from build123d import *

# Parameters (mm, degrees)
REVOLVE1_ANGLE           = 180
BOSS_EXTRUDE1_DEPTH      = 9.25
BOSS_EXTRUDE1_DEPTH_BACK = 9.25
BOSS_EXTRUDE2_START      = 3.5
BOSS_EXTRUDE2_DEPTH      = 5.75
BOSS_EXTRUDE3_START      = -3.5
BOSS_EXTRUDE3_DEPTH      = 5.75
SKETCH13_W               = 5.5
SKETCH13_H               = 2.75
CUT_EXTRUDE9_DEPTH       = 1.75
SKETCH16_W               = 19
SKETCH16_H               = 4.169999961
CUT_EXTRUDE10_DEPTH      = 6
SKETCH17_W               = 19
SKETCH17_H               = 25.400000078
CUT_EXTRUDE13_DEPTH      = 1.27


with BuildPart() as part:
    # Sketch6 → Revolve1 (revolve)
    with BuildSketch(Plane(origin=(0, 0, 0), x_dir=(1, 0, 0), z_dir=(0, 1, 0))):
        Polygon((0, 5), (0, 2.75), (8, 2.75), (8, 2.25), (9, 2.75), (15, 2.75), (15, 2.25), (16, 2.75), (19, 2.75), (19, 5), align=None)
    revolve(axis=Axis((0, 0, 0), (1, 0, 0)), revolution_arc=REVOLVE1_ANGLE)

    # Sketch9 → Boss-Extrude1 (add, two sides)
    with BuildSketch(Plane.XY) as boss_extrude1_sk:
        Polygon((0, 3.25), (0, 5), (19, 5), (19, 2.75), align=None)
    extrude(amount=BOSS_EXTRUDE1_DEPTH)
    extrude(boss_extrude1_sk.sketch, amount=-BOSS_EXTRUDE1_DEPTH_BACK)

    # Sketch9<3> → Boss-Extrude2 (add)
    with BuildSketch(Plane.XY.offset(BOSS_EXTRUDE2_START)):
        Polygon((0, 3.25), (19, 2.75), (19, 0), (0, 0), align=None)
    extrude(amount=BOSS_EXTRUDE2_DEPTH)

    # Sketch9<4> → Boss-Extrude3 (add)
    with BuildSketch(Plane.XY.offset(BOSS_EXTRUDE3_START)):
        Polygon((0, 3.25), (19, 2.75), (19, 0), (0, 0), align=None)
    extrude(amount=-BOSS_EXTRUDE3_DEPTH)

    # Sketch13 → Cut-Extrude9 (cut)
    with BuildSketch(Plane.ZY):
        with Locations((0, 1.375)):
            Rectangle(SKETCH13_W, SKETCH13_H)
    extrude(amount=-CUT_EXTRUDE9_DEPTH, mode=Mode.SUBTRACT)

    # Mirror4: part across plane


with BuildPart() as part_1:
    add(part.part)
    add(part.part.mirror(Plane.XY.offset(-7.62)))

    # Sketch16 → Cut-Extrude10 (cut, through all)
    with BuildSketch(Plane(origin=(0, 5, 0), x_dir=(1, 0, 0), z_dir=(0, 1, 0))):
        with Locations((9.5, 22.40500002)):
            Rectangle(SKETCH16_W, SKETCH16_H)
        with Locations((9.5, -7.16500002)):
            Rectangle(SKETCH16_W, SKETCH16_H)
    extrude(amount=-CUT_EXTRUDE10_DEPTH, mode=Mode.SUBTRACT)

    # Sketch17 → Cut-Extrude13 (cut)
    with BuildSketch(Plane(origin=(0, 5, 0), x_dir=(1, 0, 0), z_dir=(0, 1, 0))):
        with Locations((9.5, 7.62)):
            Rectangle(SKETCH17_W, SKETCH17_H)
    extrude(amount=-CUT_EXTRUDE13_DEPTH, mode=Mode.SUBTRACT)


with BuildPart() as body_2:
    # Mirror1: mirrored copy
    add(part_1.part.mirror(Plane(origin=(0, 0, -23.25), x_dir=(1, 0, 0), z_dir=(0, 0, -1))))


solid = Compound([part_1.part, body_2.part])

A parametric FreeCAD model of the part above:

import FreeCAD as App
import Part
import Sketcher
from FreeCAD import Vector
Q = App.Units.Quantity


def add_polygon(sketch, points):
    """Adds a closed chain of lines whose ends are joined by coincident constraints."""
    first, n = sketch.GeometryCount, len(points)
    for a, b in zip(points, points[1:] + points[:1]):
        sketch.addGeometry(Part.LineSegment(App.Vector(*a, 0), App.Vector(*b, 0)), False)
    for i in range(n):
        sketch.addConstraint(Sketcher.Constraint("Coincident", first + i, 2, first + (i + 1) % n, 1))

doc = App.newDocument("Part")
params = doc.addObject("Spreadsheet::Sheet", "Params")
for row, (alias, value) in enumerate([
    ("sketch1_width", "8 mm"),
    ("sketch1_width2", "6 mm"),
    ("sketch1_width3", "3 mm"),
    ("sketch1_width4", "19 mm"),
    ("sketch1_height", "0.5 mm"),
    ("revolution_angle", "180 deg"),
    ("sketch2_width", "19 mm"),
    ("sketch2_height", "1.75 mm"),
    ("sketch2_height2", "2.25 mm"),
    ("pad1_length", "9.25 mm"),
    ("pad1_length2", "9.25 mm"),
    ("sketch3_width", "19 mm"),
    ("sketch3_height", "3.25 mm"),
    ("sketch3_height2", "2.75 mm"),
    ("pad2_length", "5.75 mm"),
    ("sketch4_width", "19 mm"),
    ("sketch4_height", "3.25 mm"),
    ("sketch4_height2", "2.75 mm"),
    ("pad3_length", "5.75 mm"),
    ("sketch5_height", "5.5 mm"),
    ("sketch5_width", "2.75 mm"),
    ("pocket1_length", "1.75 mm"),
    ("sketch6_width", "19 mm"),
    ("sketch6_height", "4.17 mm"),
    ("sketch7_width", "19 mm"),
    ("sketch7_height", "25.4 mm"),
    ("pocket3_length", "1.27 mm"),
], start=1):
    params.set(f"A{row}", alias)
    params.set(f"B{row}", "=" + value)
    params.setAlias(f"B{row}", alias)

body = doc.addObject("PartDesign::Body", "Body")

# Sketch on XZ plane
sketch1 = doc.addObject("Sketcher::SketchObject", "Sketch")
body.addObject(sketch1)
sketch1.AttachmentSupport = (doc.XZ_Plane, [""])
sketch1.MapMode = "FlatFace"
add_polygon(sketch1, [(0, -5), (0, -2.8), (8, -2.8), (8, -2.2), (9, -2.8), (15, -2.8), (15, -2.2), (16, -2.8), (19, -2.8), (19, -5)])  # lines 0-9
sketch1.addConstraint([
    Sketcher.Constraint("Vertical", 0),
    Sketcher.Constraint("Horizontal", 1),
    Sketcher.Constraint("Vertical", 2),
    Sketcher.Constraint("Horizontal", 4),
    Sketcher.Constraint("Vertical", 5),
    Sketcher.Constraint("Horizontal", 7),
    Sketcher.Constraint("Vertical", 8),
    Sketcher.Constraint("Horizontal", 9),
    Sketcher.Constraint("PointOnObject", 0, 2, -2),
    Sketcher.Constraint("Parallel", 3, 6),
    Sketcher.Constraint("Horizontal", 1, 2, 3, 2),
    Sketcher.Constraint("Horizontal", 2, 2, 5, 2),
    Sketcher.Constraint("Horizontal", 4, 2, 6, 2),
    Sketcher.Constraint("DistanceX", 1, 1, 1, 2, Q("8 mm")),
    Sketcher.Constraint("DistanceX", 4, 1, 4, 2, Q("6 mm")),
    Sketcher.Constraint("DistanceX", 7, 1, 7, 2, Q("3 mm")),
    Sketcher.Constraint("DistanceX", 9, 2, 9, 1, Q("19 mm")),
    Sketcher.Constraint("DistanceY", 2, 1, 2, 2, Q("0.5 mm")),
    Sketcher.Constraint("DistanceY", 8, 2, -1, 1, Q("5 mm")),
    Sketcher.Constraint("DistanceY", 0, 1, 0, 2, Q("2.25 mm")),
])
sketch1.setExpression("Constraints[23]", "Params.sketch1_width")
sketch1.setExpression("Constraints[24]", "Params.sketch1_width2")
sketch1.setExpression("Constraints[25]", "Params.sketch1_width3")
sketch1.setExpression("Constraints[26]", "Params.sketch1_width4")
sketch1.setExpression("Constraints[27]", "Params.sketch1_height")
revolution = doc.addObject("PartDesign::Revolution", "Revolution")
body.addObject(revolution)
revolution.Profile = sketch1
revolution.ReferenceAxis = (sketch1, ["H_Axis"])
revolution.setExpression("Angle", "Params.revolution_angle")

# Sketch on XY plane
sketch2 = doc.addObject("Sketcher::SketchObject", "Sketch001")
body.addObject(sketch2)
sketch2.AttachmentSupport = (doc.XY_Plane, [""])
sketch2.MapMode = "FlatFace"
add_polygon(sketch2, [(0, 5), (0, 3.2), (19, 2.8), (19, 5)])  # lines 0-3
sketch2.addConstraint([
    Sketcher.Constraint("Vertical", 0),
    Sketcher.Constraint("Vertical", 2),
    Sketcher.Constraint("Horizontal", 3),
    Sketcher.Constraint("PointOnObject", 0, 2, -2),
    Sketcher.Constraint("DistanceX", 3, 2, 3, 1, Q("19 mm")),
    Sketcher.Constraint("DistanceY", -1, 1, 2, 2, Q("5 mm")),
    Sketcher.Constraint("DistanceY", 0, 2, 0, 1, Q("1.75 mm")),
    Sketcher.Constraint("DistanceY", 2, 1, 2, 2, Q("2.25 mm")),
])
sketch2.setExpression("Constraints[8]", "Params.sketch2_width")
sketch2.setExpression("Constraints[10]", "Params.sketch2_height")
sketch2.setExpression("Constraints[11]", "Params.sketch2_height2")
pad1 = doc.addObject("PartDesign::Pad", "Pad")
body.addObject(pad1)
pad1.Profile = sketch2
pad1.Type = "TwoLengths"
pad1.setExpression("Length", "Params.pad1_length")
pad1.setExpression("Length2", "Params.pad1_length2")

# Sketch on XY plane
sketch3 = doc.addObject("Sketcher::SketchObject", "Sketch002")
body.addObject(sketch3)
sketch3.AttachmentSupport = (doc.XY_Plane, [""])
sketch3.MapMode = "FlatFace"
sketch3.AttachmentOffset = App.Placement(Vector(0, 0, 3.5), App.Rotation())
add_polygon(sketch3, [(19, 2.8), (0, 3.2), (0, 0), (19, 0)])  # lines 0-3
sketch3.addConstraint([
    Sketcher.Constraint("Vertical", 1),
    Sketcher.Constraint("Horizontal", 2),
    Sketcher.Constraint("Vertical", 3),
    Sketcher.Constraint("Coincident", 1, 2, -1, 1),
    Sketcher.Constraint("DistanceX", 2, 1, 2, 2, Q("19 mm")),
    Sketcher.Constraint("DistanceY", 1, 2, 1, 1, Q("3.25 mm")),
    Sketcher.Constraint("DistanceY", 3, 1, 3, 2, Q("2.75 mm")),
])
sketch3.setExpression("Constraints[8]", "Params.sketch3_width")
sketch3.setExpression("Constraints[9]", "Params.sketch3_height")
sketch3.setExpression("Constraints[10]", "Params.sketch3_height2")
pad2 = doc.addObject("PartDesign::Pad", "Pad001")
body.addObject(pad2)
pad2.Profile = sketch3
pad2.setExpression("Length", "Params.pad2_length")

# Sketch on XY plane
sketch4 = doc.addObject("Sketcher::SketchObject", "Sketch003")
body.addObject(sketch4)
sketch4.AttachmentSupport = (doc.XY_Plane, [""])
sketch4.MapMode = "FlatFace"
sketch4.AttachmentOffset = App.Placement(Vector(0, 0, -3.5), App.Rotation())
add_polygon(sketch4, [(19, 2.8), (0, 3.2), (0, 0), (19, 0)])  # lines 0-3
sketch4.addConstraint([
    Sketcher.Constraint("Vertical", 1),
    Sketcher.Constraint("Horizontal", 2),
    Sketcher.Constraint("Vertical", 3),
    Sketcher.Constraint("Coincident", 1, 2, -1, 1),
    Sketcher.Constraint("DistanceX", 2, 1, 2, 2, Q("19 mm")),
    Sketcher.Constraint("DistanceY", 1, 2, 1, 1, Q("3.25 mm")),
    Sketcher.Constraint("DistanceY", 3, 1, 3, 2, Q("2.75 mm")),
])
sketch4.setExpression("Constraints[8]", "Params.sketch4_width")
sketch4.setExpression("Constraints[9]", "Params.sketch4_height")
sketch4.setExpression("Constraints[10]", "Params.sketch4_height2")
pad3 = doc.addObject("PartDesign::Pad", "Pad002")
body.addObject(pad3)
pad3.Profile = sketch4
pad3.setExpression("Length", "Params.pad3_length")
pad3.Reversed = True

# Sketch on YZ plane
sketch5 = doc.addObject("Sketcher::SketchObject", "Sketch004")
body.addObject(sketch5)
sketch5.AttachmentSupport = (doc.YZ_Plane, [""])
sketch5.MapMode = "FlatFace"
add_polygon(sketch5, [(2.8, -2.8), (0, -2.8), (0, 2.8), (2.8, 2.8)])  # lines 0-3
sketch5.addConstraint([
    Sketcher.Constraint("Horizontal", 0),
    Sketcher.Constraint("Vertical", 1),
    Sketcher.Constraint("Horizontal", 2),
    Sketcher.Constraint("Vertical", 3),
    Sketcher.Constraint("Symmetric", 0, 2, 1, 2, -1, 1),
    Sketcher.Constraint("DistanceY", 1, 1, 1, 2, Q("5.5 mm")),
    Sketcher.Constraint("DistanceX", 0, 2, 0, 1, Q("2.75 mm")),
])
sketch5.setExpression("Constraints[9]", "Params.sketch5_height")
sketch5.setExpression("Constraints[10]", "Params.sketch5_width")
pocket1 = doc.addObject("PartDesign::Pocket", "Pocket")
body.addObject(pocket1)
pocket1.Profile = sketch5
pocket1.setExpression("Length", "Params.pocket1_length")
pocket1.Reversed = True
body2 = doc.addObject("PartDesign::Body", "Body001")
doc.recompute()

body2.BaseFeature = body
doc.recompute()

mirroring = doc.addObject("Part::Mirroring", "Mirroring")
mirroring.Source = body
mirroring.Base = Vector(0, 0, -7.62)
mirroring.Normal = Vector(0, 0, 1)
body3 = doc.addObject("PartDesign::Body", "Body002")
body3.BaseFeature = mirroring
boolean = doc.addObject("PartDesign::Boolean", "Boolean")
body2.addObject(boolean)
boolean.Type = "Fuse"
boolean.addObjects([body3])
doc.recompute()

# Sketch on XZ plane
sketch6 = doc.addObject("Sketcher::SketchObject", "Sketch005")
body2.addObject(sketch6)
sketch6.AttachmentSupport = (doc.getObject("XZ_Plane001"), [""])
sketch6.MapMode = "FlatFace"
sketch6.AttachmentOffset = App.Placement(Vector(0, 0, -5), App.Rotation())
add_polygon(sketch6, [(0, -24.5), (0, -20.3), (19, -20.3), (19, -24.5)])  # lines 0-3
add_polygon(sketch6, [(0, 5.1), (0, 9.3), (19, 9.3), (19, 5.1)])  # lines 4-7
sketch6.addConstraint([
    Sketcher.Constraint("Vertical", 0),
    Sketcher.Constraint("Horizontal", 1),
    Sketcher.Constraint("Vertical", 2),
    Sketcher.Constraint("Horizontal", 3),
    Sketcher.Constraint("Vertical", 4),
    Sketcher.Constraint("Horizontal", 5),
    Sketcher.Constraint("Vertical", 6),
    Sketcher.Constraint("Horizontal", 7),
    Sketcher.Constraint("PointOnObject", 0, 2, -2),
    Sketcher.Constraint("PointOnObject", 4, 2, -2),
    Sketcher.Constraint("Vertical", 2, 2, 5, 2),
    Sketcher.Constraint("Equal", 2, 4),
    Sketcher.Constraint("DistanceX", 1, 1, 1, 2, Q("19 mm")),
    Sketcher.Constraint("DistanceY", 0, 1, 0, 2, Q("4.17 mm")),
    Sketcher.Constraint("DistanceY", 1, 2, 6, 2, Q("25.4 mm")),
    Sketcher.Constraint("DistanceY", 0, 2, -1, 1, Q("20.32 mm")),
])
sketch6.setExpression("Constraints[20]", "Params.sketch6_width")
sketch6.setExpression("Constraints[21]", "Params.sketch6_height")
pocket2 = doc.addObject("PartDesign::Pocket", "Pocket001")
body2.addObject(pocket2)
pocket2.Profile = sketch6
pocket2.Type = "ThroughAll"
pocket2.Reversed = True

# Sketch on XZ plane
sketch7 = doc.addObject("Sketcher::SketchObject", "Sketch006")
body2.addObject(sketch7)
sketch7.AttachmentSupport = (doc.getObject("XZ_Plane001"), [""])
sketch7.MapMode = "FlatFace"
sketch7.AttachmentOffset = App.Placement(Vector(0, 0, -5), App.Rotation())
add_polygon(sketch7, [(0, -20), (0, 5), (19, 5), (19, -20)])  # lines 0-3
sketch7.addConstraint([
    Sketcher.Constraint("Vertical", 0),
    Sketcher.Constraint("Horizontal", 1),
    Sketcher.Constraint("Vertical", 2),
    Sketcher.Constraint("Horizontal", 3),
    Sketcher.Constraint("PointOnObject", 0, 2, -2),
    Sketcher.Constraint("DistanceX", 1, 1, 1, 2, Q("19 mm")),
    Sketcher.Constraint("DistanceY", 0, 1, 0, 2, Q("25.4 mm")),
    Sketcher.Constraint("DistanceY", -1, 1, 0, 2, Q("5.08 mm")),
])
sketch7.setExpression("Constraints[9]", "Params.sketch7_width")
sketch7.setExpression("Constraints[10]", "Params.sketch7_height")
pocket3 = doc.addObject("PartDesign::Pocket", "Pocket002")
body2.addObject(pocket3)
pocket3.Profile = sketch7
pocket3.setExpression("Length", "Params.pocket3_length")
pocket3.Reversed = True
body4 = doc.addObject("PartDesign::Body", "Body003")
doc.recompute()

mirroring2 = doc.addObject("Part::Mirroring", "Mirroring001")
mirroring2.Source = body2
mirroring2.Base = Vector(0, 0, -23.25)
mirroring2.Normal = Vector(0, 0, -1)
body4.BaseFeature = mirroring2
doc.recompute()
mirroring.Visibility = False
mirroring2.Visibility = False

doc.recompute()
